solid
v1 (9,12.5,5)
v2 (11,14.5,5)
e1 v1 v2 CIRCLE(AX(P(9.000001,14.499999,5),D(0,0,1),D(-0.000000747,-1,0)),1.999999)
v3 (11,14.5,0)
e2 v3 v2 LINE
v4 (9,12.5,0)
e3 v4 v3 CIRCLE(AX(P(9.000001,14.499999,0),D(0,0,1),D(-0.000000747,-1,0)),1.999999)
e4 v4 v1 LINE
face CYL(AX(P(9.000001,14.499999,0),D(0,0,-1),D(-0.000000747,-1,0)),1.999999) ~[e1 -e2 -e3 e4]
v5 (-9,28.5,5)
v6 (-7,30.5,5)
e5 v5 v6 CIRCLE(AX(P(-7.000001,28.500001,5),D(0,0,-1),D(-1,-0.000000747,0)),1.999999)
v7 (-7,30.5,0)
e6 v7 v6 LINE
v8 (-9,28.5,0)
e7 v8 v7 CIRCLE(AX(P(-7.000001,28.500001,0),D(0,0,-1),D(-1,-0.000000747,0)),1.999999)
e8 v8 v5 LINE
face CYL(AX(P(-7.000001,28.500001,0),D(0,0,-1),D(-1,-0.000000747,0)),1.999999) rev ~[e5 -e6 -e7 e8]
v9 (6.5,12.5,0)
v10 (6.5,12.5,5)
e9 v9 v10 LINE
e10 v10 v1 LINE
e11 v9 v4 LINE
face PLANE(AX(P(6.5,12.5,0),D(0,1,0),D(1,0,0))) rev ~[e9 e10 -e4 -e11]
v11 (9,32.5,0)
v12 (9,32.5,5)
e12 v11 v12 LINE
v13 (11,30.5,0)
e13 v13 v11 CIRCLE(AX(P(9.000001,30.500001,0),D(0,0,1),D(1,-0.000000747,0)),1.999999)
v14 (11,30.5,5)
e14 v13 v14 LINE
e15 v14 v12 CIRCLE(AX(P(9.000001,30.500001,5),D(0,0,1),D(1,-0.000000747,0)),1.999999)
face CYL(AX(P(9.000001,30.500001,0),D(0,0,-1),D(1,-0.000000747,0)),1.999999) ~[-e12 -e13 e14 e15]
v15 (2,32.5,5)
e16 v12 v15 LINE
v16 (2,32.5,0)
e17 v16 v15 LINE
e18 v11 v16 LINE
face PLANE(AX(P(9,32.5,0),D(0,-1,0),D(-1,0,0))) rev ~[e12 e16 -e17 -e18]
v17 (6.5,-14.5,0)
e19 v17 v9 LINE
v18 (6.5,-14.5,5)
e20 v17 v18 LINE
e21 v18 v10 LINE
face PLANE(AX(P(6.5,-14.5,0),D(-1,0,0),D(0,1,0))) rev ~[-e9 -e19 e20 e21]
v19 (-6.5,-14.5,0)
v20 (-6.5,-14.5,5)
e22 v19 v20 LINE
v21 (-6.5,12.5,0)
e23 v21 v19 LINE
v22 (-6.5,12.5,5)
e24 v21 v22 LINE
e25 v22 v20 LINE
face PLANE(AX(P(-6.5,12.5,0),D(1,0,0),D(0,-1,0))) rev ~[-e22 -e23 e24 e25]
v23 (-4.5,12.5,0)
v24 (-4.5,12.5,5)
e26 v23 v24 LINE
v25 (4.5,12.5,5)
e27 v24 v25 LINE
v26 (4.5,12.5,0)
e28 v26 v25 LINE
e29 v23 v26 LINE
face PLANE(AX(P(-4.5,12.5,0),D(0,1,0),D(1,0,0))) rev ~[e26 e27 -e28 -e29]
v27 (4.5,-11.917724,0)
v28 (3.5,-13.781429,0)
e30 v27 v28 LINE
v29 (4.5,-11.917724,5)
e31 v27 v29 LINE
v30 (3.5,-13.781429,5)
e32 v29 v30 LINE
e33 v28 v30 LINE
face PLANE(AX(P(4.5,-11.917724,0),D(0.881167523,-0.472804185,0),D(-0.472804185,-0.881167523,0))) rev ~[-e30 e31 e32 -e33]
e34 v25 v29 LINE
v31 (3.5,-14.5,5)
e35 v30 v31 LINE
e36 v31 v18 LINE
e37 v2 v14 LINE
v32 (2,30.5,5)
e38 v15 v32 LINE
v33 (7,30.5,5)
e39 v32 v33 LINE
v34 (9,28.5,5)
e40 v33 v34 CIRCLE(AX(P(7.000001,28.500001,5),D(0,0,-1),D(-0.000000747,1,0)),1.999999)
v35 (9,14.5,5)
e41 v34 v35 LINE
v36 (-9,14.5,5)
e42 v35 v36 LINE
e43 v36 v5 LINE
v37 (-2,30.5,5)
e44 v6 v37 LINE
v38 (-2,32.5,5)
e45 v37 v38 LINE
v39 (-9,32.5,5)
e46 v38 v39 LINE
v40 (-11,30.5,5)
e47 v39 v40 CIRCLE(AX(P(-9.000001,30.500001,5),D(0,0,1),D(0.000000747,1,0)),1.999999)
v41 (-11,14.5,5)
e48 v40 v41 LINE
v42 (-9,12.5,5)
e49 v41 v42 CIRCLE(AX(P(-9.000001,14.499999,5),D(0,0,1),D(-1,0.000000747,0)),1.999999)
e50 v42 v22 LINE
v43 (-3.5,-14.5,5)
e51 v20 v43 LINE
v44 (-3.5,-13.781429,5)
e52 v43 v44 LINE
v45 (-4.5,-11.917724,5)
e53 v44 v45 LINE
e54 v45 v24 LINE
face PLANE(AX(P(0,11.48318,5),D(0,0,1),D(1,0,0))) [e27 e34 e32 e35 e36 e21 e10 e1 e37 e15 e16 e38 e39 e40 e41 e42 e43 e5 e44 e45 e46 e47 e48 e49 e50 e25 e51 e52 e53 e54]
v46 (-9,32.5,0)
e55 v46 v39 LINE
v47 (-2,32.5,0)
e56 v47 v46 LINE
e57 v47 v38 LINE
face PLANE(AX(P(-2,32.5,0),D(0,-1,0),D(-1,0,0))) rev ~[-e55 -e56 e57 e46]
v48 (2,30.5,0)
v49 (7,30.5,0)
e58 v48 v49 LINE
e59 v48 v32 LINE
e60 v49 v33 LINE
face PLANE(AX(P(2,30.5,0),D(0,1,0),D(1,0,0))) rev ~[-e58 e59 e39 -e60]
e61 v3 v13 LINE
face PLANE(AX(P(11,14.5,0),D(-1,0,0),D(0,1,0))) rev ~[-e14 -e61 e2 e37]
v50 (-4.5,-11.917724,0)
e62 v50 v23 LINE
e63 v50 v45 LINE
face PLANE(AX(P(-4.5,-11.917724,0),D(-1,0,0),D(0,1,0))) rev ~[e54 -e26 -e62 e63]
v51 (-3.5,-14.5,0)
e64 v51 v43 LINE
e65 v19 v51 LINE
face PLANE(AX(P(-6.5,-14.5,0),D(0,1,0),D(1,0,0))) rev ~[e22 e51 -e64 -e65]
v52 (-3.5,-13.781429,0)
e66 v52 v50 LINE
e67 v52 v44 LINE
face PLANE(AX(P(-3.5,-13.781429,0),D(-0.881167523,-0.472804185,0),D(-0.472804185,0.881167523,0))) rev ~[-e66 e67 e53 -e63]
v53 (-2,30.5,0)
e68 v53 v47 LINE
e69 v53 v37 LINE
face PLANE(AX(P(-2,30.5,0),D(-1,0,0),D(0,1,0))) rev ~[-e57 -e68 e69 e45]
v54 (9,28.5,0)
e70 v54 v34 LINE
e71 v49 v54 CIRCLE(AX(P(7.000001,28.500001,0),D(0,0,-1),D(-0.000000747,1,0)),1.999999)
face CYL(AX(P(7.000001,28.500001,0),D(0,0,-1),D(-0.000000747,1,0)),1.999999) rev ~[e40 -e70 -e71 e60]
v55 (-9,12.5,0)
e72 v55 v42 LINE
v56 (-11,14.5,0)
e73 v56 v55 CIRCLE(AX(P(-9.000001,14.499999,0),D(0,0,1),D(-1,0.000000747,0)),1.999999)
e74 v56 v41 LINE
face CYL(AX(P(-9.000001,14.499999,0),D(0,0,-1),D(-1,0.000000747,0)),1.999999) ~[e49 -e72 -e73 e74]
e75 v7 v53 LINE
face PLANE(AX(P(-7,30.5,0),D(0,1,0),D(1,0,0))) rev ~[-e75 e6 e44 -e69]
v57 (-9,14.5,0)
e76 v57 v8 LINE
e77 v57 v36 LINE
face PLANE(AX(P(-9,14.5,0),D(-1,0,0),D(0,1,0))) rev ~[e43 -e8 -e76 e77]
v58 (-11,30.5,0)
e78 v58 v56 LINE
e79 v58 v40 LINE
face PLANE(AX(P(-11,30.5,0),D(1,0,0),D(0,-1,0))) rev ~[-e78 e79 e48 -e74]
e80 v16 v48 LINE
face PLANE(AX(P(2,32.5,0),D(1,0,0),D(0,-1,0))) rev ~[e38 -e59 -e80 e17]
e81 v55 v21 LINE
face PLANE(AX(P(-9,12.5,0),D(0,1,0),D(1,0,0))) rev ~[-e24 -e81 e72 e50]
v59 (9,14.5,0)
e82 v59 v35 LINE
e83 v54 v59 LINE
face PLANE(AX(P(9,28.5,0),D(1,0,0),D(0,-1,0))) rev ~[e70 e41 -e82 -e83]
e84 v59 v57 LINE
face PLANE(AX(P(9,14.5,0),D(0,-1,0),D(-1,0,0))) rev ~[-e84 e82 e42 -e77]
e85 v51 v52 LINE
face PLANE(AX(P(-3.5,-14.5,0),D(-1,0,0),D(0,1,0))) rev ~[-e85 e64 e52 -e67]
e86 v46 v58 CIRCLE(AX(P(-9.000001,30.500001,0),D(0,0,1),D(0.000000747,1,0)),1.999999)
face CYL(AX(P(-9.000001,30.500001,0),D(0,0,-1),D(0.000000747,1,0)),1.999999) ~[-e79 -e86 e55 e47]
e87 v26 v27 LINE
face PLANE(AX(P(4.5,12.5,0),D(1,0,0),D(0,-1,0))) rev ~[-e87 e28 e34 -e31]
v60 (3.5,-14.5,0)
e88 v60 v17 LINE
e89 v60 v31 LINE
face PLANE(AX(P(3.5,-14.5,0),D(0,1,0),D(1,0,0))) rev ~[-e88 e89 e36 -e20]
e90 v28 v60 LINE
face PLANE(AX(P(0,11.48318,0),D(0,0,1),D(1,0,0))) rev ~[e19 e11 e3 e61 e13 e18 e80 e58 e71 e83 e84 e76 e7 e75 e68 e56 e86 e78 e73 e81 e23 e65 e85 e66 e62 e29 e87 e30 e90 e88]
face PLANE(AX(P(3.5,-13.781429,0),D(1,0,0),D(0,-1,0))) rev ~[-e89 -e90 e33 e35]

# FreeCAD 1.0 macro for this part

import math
import FreeCAD as App
import Part
import Sketcher

V = App.Vector

doc = App.newDocument("Part")
body = doc.addObject("PartDesign::Body", "Body")

# Sketch on XY plane
sketch1 = body.newObject("Sketcher::SketchObject", "Sketch")
sketch1.AttachmentSupport = (doc.getObject("XY_Plane"), [""])
sketch1.MapMode = "FlatFace"
sketch1.addGeometry([
    Part.LineSegment(V(-4.5, 12.5, 0), V(4.5, 12.5, 0)),  # 0
    Part.LineSegment(V(4.5, 12.5, 0), V(4.5, -11.9, 0)),  # 1
    Part.LineSegment(V(4.5, -11.9, 0), V(3.5, -13.8, 0)),  # 2
    Part.LineSegment(V(3.5, -13.8, 0), V(3.5, -14.5, 0)),  # 3
    Part.LineSegment(V(3.5, -14.5, 0), V(6.5, -14.5, 0)),  # 4
    Part.LineSegment(V(6.5, -14.5, 0), V(6.5, 12.5, 0)),  # 5
    Part.LineSegment(V(6.5, 12.5, 0), V(9, 12.5, 0)),  # 6
    Part.ArcOfCircle(Part.Circle(V(9, 14.5, 0), V(0, 0, 1), 2), math.radians(-90), math.radians(0)),  # 7
    Part.LineSegment(V(11, 14.5, 0), V(11, 30.5, 0)),  # 8
    Part.ArcOfCircle(Part.Circle(V(9, 30.5, 0), V(0, 0, 1), 2), math.radians(0), math.radians(90)),  # 9
    Part.LineSegment(V(9, 32.5, 0), V(2, 32.5, 0)),  # 10
    Part.LineSegment(V(2, 32.5, 0), V(2, 30.5, 0)),  # 11
    Part.LineSegment(V(2, 30.5, 0), V(7, 30.5, 0)),  # 12
    Part.ArcOfCircle(Part.Circle(V(7, 28.5, 0), V(0, 0, 1), 2), math.radians(0), math.radians(90)),  # 13
    Part.LineSegment(V(9, 28.5, 0), V(9, 14.5, 0)),  # 14
    Part.LineSegment(V(9, 14.5, 0), V(-9, 14.5, 0)),  # 15
    Part.LineSegment(V(-9, 14.5, 0), V(-9, 28.5, 0)),  # 16
    Part.ArcOfCircle(Part.Circle(V(-7, 28.5, 0), V(0, 0, 1), 2), math.radians(90), math.radians(180)),  # 17
    Part.LineSegment(V(-7, 30.5, 0), V(-2, 30.5, 0)),  # 18
    Part.LineSegment(V(-2, 30.5, 0), V(-2, 32.5, 0)),  # 19
    Part.LineSegment(V(-2, 32.5, 0), V(-9, 32.5, 0)),  # 20
    Part.ArcOfCircle(Part.Circle(V(-9, 30.5, 0), V(0, 0, 1), 2), math.radians(90), math.radians(180)),  # 21
    Part.LineSegment(V(-11, 30.5, 0), V(-11, 14.5, 0)),  # 22
    Part.ArcOfCircle(Part.Circle(V(-9, 14.5, 0), V(0, 0, 1), 2), math.radians(180), math.radians(270)),  # 23
    Part.LineSegment(V(-9, 12.5, 0), V(-6.5, 12.5, 0)),  # 24
    Part.LineSegment(V(-6.5, 12.5, 0), V(-6.5, -14.5, 0)),  # 25
    Part.LineSegment(V(-6.5, -14.5, 0), V(-3.5, -14.5, 0)),  # 26
    Part.LineSegment(V(-3.5, -14.5, 0), V(-3.5, -13.8, 0)),  # 27
    Part.LineSegment(V(-3.5, -13.8, 0), V(-4.5, -11.9, 0)),  # 28
    Part.LineSegment(V(-4.5, -11.9, 0), V(-4.5, 12.5, 0)),  # 29
], False)
sketch1.addConstraint([
    Sketcher.Constraint("Coincident", 0, 2, 1, 1),
    Sketcher.Constraint("Coincident", 1, 2, 2, 1),
    Sketcher.Constraint("Coincident", 2, 2, 3, 1),
    Sketcher.Constraint("Coincident", 3, 2, 4, 1),
    Sketcher.Constraint("Coincident", 4, 2, 5, 1),
    Sketcher.Constraint("Coincident", 5, 2, 6, 1),
    Sketcher.Constraint("Tangent", 6, 2, 7, 1),
    Sketcher.Constraint("Tangent", 7, 2, 8, 1),
    Sketcher.Constraint("Tangent", 8, 2, 9, 1),
    Sketcher.Constraint("Tangent", 9, 2, 10, 1),
    Sketcher.Constraint("Coincident", 10, 2, 11, 1),
    Sketcher.Constraint("Coincident", 11, 2, 12, 1),
    Sketcher.Constraint("Tangent", 12, 2, 13, 2),
    Sketcher.Constraint("Tangent", 13, 1, 14, 1),
    Sketcher.Constraint("Coincident", 14, 2, 15, 1),
    Sketcher.Constraint("Coincident", 15, 2, 16, 1),
    Sketcher.Constraint("Tangent", 16, 2, 17, 2),
    Sketcher.Constraint("Tangent", 17, 1, 18, 1),
    Sketcher.Constraint("Coincident", 18, 2, 19, 1),
    Sketcher.Constraint("Coincident", 19, 2, 20, 1),
    Sketcher.Constraint("Tangent", 20, 2, 21, 1),
    Sketcher.Constraint("Tangent", 21, 2, 22, 1),
    Sketcher.Constraint("Tangent", 22, 2, 23, 1),
    Sketcher.Constraint("Tangent", 23, 2, 24, 1),
    Sketcher.Constraint("Coincident", 24, 2, 25, 1),
    Sketcher.Constraint("Coincident", 25, 2, 26, 1),
    Sketcher.Constraint("Coincident", 26, 2, 27, 1),
    Sketcher.Constraint("Coincident", 27, 2, 28, 1),
    Sketcher.Constraint("Coincident", 28, 2, 29, 1),
    Sketcher.Constraint("Coincident", 29, 2, 0, 1),
    Sketcher.Constraint("Horizontal", 0),
    Sketcher.Constraint("Vertical", 1),
    Sketcher.Constraint("Vertical", 3),
    Sketcher.Constraint("Horizontal", 4),
    Sketcher.Constraint("Vertical", 5),
    Sketcher.Constraint("Horizontal", 6),
    Sketcher.Constraint("Vertical", 8),
    Sketcher.Constraint("Horizontal", 10),
    Sketcher.Constraint("Vertical", 11),
    Sketcher.Constraint("Horizontal", 12),
    Sketcher.Constraint("Vertical", 14),
    Sketcher.Constraint("Horizontal", 15),
    Sketcher.Constraint("Vertical", 16),
    Sketcher.Constraint("Horizontal", 18),
    Sketcher.Constraint("Vertical", 19),
    Sketcher.Constraint("Horizontal", 20),
    Sketcher.Constraint("Vertical", 22),
    Sketcher.Constraint("Horizontal", 24),
    Sketcher.Constraint("Vertical", 25),
    Sketcher.Constraint("Horizontal", 26),
    Sketcher.Constraint("Vertical", 27),
    Sketcher.Constraint("Vertical", 29),
    Sketcher.Constraint("Coincident", 14, 2, 7, 3),
    Sketcher.Constraint("Coincident", 15, 2, 23, 3),
    Sketcher.Constraint("Equal", 7, 9),
    Sketcher.Constraint("Equal", 9, 13),
    Sketcher.Constraint("Equal", 13, 17),
    Sketcher.Constraint("Equal", 17, 21),
    Sketcher.Constraint("Equal", 21, 23),
    Sketcher.Constraint("Symmetric", 13, 3, 17, 3, -2),
    Sketcher.Constraint("Symmetric", 10, 2, 19, 2, -2),
    Sketcher.Constraint("Symmetric", 4, 2, 25, 2, -2),
    Sketcher.Constraint("Symmetric", 2, 2, 27, 2, -2),
    Sketcher.Constraint("Symmetric", 1, 2, 28, 2, -2),
    Sketcher.Constraint("Horizontal", 0, 2, 5, 2),
    Sketcher.Constraint("Horizontal", 8, 2, 11, 2),
    Sketcher.Constraint("Radius", 7, 1.999999),
    Sketcher.Constraint("DistanceX", 0, 1, 0, 2, 9.0),
    Sketcher.Constraint("DistanceX", 4, 1, 4, 2, 3.0),
    Sketcher.Constraint("DistanceX", 10, 2, 10, 1, 7.0),
    Sketcher.Constraint("DistanceX", 15, 2, 15, 1, 18.0),
    Sketcher.Constraint("DistanceY", 5, 1, 5, 2, 27.0),
    Sketcher.Constraint("DistanceY", 8, 1, 8, 2, 16.0),
    Sketcher.Constraint("DistanceX", 6, 1, 6, 2, 2.5),
    Sketcher.Constraint("DistanceY", -1, 1, 7, 3, 14.499999),
    Sketcher.Constraint("DistanceY", 3, 2, 3, 1, 0.718571),
    Sketcher.Constraint("Distance", 2, 2.115041),
])
pad1 = body.newObject("PartDesign::Pad", "Pad")
pad1.Profile = sketch1
pad1.Length = 5

doc.recompute()
